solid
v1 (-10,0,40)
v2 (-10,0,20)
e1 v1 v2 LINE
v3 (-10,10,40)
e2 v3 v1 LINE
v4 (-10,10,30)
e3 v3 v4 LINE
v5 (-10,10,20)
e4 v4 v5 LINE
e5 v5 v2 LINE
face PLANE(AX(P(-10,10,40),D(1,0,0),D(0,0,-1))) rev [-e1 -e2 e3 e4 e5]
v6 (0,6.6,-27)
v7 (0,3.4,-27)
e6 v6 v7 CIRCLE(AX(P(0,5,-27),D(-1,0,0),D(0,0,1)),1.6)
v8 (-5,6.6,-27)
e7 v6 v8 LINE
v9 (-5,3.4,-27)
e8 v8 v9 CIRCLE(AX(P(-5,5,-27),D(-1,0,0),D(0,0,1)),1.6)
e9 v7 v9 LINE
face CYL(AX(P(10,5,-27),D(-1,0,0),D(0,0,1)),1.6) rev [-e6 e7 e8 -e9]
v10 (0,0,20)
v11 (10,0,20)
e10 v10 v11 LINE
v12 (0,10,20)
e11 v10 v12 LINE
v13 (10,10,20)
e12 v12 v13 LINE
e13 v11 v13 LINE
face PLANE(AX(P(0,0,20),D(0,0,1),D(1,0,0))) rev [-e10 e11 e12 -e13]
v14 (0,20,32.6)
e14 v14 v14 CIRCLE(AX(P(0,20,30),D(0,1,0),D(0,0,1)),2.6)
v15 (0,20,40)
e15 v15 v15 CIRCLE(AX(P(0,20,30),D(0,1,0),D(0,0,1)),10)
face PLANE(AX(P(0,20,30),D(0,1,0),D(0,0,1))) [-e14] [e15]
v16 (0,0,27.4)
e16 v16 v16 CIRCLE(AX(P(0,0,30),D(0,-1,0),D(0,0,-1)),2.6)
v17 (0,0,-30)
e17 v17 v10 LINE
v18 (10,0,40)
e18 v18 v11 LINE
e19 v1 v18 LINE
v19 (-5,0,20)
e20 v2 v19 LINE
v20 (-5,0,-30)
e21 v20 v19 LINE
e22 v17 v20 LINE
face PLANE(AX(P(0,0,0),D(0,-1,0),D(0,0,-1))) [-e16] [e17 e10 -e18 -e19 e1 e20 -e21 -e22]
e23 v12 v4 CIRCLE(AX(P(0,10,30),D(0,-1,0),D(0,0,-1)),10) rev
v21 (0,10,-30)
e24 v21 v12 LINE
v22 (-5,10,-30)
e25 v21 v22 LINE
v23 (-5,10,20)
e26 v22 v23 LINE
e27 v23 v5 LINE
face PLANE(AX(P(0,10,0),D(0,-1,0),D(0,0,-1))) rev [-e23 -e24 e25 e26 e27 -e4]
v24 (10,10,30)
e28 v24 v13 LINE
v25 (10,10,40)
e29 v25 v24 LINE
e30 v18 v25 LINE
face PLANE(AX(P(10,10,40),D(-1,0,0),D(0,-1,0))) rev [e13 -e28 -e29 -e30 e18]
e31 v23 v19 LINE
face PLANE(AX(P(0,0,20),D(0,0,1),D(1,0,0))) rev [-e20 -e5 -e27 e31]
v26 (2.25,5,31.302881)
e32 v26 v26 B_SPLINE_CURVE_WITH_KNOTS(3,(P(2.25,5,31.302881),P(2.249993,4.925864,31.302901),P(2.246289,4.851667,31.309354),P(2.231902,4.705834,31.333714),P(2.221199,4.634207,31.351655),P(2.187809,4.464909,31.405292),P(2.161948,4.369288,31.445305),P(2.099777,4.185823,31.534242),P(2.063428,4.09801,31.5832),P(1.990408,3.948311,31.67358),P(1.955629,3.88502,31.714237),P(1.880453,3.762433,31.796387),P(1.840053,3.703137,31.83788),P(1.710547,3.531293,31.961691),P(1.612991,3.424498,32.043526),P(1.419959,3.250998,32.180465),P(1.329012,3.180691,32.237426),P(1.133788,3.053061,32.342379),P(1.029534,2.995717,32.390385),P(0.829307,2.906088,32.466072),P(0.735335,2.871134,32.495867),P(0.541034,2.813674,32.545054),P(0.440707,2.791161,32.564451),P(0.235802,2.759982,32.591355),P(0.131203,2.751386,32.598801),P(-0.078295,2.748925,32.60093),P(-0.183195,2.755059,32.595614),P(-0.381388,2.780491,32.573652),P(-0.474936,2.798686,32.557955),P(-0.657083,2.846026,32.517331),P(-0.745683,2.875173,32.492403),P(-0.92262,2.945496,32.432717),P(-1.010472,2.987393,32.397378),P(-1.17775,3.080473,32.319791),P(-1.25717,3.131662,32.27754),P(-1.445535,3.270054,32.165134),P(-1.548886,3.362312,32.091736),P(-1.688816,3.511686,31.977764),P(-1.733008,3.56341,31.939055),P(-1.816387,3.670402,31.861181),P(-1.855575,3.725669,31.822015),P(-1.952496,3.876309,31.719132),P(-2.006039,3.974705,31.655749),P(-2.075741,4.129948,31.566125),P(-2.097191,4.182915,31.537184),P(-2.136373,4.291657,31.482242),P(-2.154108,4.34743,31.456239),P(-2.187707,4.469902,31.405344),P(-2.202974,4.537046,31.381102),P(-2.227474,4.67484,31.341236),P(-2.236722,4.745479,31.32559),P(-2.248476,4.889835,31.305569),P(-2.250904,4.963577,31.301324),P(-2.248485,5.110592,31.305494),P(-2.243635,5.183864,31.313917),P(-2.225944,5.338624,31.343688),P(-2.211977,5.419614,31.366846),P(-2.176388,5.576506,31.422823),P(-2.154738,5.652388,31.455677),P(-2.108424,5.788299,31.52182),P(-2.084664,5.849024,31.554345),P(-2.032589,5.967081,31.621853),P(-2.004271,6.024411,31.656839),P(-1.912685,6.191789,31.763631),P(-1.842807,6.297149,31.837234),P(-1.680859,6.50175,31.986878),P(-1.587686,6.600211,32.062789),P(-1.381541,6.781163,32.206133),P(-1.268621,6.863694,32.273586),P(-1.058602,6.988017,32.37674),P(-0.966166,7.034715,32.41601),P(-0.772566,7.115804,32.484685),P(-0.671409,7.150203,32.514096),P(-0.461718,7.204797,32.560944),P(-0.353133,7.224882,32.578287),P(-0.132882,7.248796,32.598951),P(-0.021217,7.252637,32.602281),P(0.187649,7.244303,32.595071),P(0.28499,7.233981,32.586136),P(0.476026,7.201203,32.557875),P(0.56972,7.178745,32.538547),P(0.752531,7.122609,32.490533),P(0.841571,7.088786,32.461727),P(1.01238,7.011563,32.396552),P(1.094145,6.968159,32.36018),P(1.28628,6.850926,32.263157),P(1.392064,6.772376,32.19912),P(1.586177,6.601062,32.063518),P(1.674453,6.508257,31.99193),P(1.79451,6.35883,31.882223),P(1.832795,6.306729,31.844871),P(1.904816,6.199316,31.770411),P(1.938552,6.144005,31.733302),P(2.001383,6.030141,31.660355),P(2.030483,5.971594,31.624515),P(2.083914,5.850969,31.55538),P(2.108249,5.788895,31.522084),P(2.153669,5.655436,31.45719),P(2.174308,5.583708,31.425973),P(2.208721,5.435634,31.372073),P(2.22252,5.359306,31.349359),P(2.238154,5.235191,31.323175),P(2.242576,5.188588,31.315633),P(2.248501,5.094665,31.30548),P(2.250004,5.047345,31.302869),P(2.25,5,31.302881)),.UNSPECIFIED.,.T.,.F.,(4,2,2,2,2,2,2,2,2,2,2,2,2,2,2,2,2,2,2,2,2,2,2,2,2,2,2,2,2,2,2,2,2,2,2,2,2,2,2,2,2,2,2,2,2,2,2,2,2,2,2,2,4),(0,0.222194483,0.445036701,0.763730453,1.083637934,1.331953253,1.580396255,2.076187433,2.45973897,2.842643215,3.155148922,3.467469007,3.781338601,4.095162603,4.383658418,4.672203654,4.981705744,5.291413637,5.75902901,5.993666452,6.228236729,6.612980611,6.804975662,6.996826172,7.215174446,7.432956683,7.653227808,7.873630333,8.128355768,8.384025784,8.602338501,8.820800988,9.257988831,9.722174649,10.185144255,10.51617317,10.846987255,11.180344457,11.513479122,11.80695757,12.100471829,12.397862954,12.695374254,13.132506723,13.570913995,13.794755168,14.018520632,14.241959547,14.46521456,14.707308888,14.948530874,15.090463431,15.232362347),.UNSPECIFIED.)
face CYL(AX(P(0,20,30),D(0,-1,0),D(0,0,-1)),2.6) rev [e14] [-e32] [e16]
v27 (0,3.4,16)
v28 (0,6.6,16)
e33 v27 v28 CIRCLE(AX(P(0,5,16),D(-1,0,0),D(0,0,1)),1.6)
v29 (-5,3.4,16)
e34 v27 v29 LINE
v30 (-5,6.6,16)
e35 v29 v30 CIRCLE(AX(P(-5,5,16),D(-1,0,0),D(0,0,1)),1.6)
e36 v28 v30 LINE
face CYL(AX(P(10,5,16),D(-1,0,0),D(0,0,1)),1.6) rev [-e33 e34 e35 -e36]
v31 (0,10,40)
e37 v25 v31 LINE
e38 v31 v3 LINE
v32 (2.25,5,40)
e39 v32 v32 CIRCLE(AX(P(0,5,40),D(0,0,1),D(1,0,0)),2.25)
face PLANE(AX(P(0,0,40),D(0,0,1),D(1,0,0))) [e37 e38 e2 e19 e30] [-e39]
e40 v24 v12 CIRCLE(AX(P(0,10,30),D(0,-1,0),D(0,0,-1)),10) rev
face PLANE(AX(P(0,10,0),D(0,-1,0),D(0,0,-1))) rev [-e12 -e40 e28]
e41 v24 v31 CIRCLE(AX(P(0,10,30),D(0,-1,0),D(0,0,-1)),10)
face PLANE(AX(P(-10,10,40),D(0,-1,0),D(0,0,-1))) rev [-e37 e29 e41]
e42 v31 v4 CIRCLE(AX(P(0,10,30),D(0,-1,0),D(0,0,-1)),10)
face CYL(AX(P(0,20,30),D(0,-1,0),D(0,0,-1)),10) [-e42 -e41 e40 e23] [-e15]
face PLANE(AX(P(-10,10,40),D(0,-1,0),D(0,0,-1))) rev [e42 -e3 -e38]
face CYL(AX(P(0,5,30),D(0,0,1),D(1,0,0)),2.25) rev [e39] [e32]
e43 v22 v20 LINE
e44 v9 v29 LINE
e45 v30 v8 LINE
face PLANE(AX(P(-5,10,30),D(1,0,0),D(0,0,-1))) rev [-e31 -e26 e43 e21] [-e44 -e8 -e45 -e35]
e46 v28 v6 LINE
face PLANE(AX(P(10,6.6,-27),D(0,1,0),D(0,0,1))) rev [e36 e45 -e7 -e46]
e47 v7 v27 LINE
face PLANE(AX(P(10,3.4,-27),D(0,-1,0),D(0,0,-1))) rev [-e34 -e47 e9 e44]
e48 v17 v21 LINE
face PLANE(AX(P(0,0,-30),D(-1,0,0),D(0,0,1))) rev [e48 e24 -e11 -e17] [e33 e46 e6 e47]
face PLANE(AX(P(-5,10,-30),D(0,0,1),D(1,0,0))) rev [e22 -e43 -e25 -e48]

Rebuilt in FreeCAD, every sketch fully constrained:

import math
import FreeCAD as App
import Part
import Sketcher
Q = App.Units.Quantity


def add_polygon(sketch, points):
    """Adds a closed chain of lines whose ends are joined by coincident constraints."""
    first, n = sketch.GeometryCount, len(points)
    for a, b in zip(points, points[1:] + points[:1]):
        sketch.addGeometry(Part.LineSegment(App.Vector(*a, 0), App.Vector(*b, 0)), False)
    for i in range(n):
        sketch.addConstraint(Sketcher.Constraint("Coincident", first + i, 2, first + (i + 1) % n, 1))

doc = App.newDocument("Part")
body = doc.addObject("PartDesign::Body", "Body")

# Sketch on XZ plane
sketch1 = body.newObject("Sketcher::SketchObject", "Sketch")
sketch1.AttachmentSupport = (doc.getObject("XZ_Plane"), [""])
sketch1.MapMode = "FlatFace"
add_polygon(sketch1, [(-5, -30), (-5, 30), (5, 30), (5, -30)])  # lines 0-3
sketch1.addConstraint([
    Sketcher.Constraint("Vertical", 0),
    Sketcher.Constraint("Horizontal", 1),
    Sketcher.Constraint("Vertical", 2),
    Sketcher.Constraint("Horizontal", 3),
    Sketcher.Constraint("Symmetric", 0, 2, 2, 2, -1, 1),
    Sketcher.Constraint("DistanceX", 1, 1, 1, 2, Q("10 mm")),
    Sketcher.Constraint("DistanceY", 0, 1, 0, 2, Q("60 mm")),
])
pad1 = body.newObject("PartDesign::Pad", "Pad")
pad1.Profile = sketch1
pad1.Length = 10
pad1.Reversed = True

# Sketch on XZ plane
sketch2 = body.newObject("Sketcher::SketchObject", "Sketch001")
sketch2.AttachmentSupport = (doc.getObject("XZ_Plane"), [""])
sketch2.MapMode = "FlatFace"
sketch2.addGeometry([
    Part.Circle(App.Vector(0, 30, 0), App.Vector(0, 0, 1), 10),
    Part.Circle(App.Vector(0, 30, 0), App.Vector(0, 0, 1), 2.6),
], False)
sketch2.addConstraint([
    Sketcher.Constraint("Coincident", 1, 3, 0, 3),
    Sketcher.Constraint("PointOnObject", 0, 3, -2),
    Sketcher.Constraint("Diameter", 0, Q("20 mm")),
    Sketcher.Constraint("Diameter", 1, Q("5.2 mm")),
    Sketcher.Constraint("DistanceY", -1, 1, 0, 3, Q("30 mm")),
])
pad2 = body.newObject("PartDesign::Pad", "Pad001")
pad2.Profile = sketch2
pad2.Length = 20
pad2.Reversed = True

# Sketch on XZ plane
sketch3 = body.newObject("Sketcher::SketchObject", "Sketch002")
sketch3.AttachmentSupport = (doc.getObject("XZ_Plane"), [""])
sketch3.MapMode = "FlatFace"
sketch3.AttachmentOffset = App.Placement(App.Vector(0, 0, -10), App.Rotation())
add_polygon(sketch3, [(0, -30), (0, 20), (6, 20), (6, -30)])  # lines 0-3
sketch3.addConstraint([
    Sketcher.Constraint("Vertical", 0),
    Sketcher.Constraint("Horizontal", 1),
    Sketcher.Constraint("Vertical", 2),
    Sketcher.Constraint("Horizontal", 3),
    Sketcher.Constraint("PointOnObject", 0, 2, -2),
    Sketcher.Constraint("DistanceX", 1, 1, 1, 2, Q("6 mm")),
    Sketcher.Constraint("DistanceY", 0, 1, 0, 2, Q("50 mm")),
    Sketcher.Constraint("DistanceY", -1, 1, 0, 2, Q("20 mm")),
])
pocket1 = body.newObject("PartDesign::Pocket", "Pocket")
pocket1.Profile = sketch3
pocket1.Type = "ThroughAll"
pocket1.Reversed = True

# Sketch on YZ plane
sketch4 = body.newObject("Sketcher::SketchObject", "Sketch003")
sketch4.AttachmentSupport = (doc.getObject("YZ_Plane"), [""])
sketch4.MapMode = "FlatFace"
sketch4.AttachmentOffset = App.Placement(App.Vector(0, 0, -5), App.Rotation())
sketch4.addGeometry([
    Part.LineSegment(App.Vector(6.6, 16, 0), App.Vector(6.6, -27, 0)),
    Part.ArcOfCircle(Part.Circle(App.Vector(5, -27, 0), App.Vector(0, 0, 1), 1.6), math.radians(180), math.radians(360)),
    Part.LineSegment(App.Vector(3.4, -27, 0), App.Vector(3.4, 16, 0)),
    Part.ArcOfCircle(Part.Circle(App.Vector(5, 16, 0), App.Vector(0, 0, 1), 1.6), math.radians(0), math.radians(180)),
], False)
sketch4.addConstraint([
    Sketcher.Constraint("Tangent", 0, 2, 1, 2),
    Sketcher.Constraint("Tangent", 1, 1, 2, 1),
    Sketcher.Constraint("Tangent", 2, 2, 3, 2),
    Sketcher.Constraint("Tangent", 3, 1, 0, 1),
    Sketcher.Constraint("Vertical", 0),
    Sketcher.Constraint("Vertical", 2),
    Sketcher.Constraint("Radius", 1, Q("1.6 mm")),
    Sketcher.Constraint("DistanceY", 0, 2, 0, 1, Q("43 mm")),
    Sketcher.Constraint("DistanceX", -1, 1, 1, 3, Q("5 mm")),
    Sketcher.Constraint("DistanceY", 1, 3, -1, 1, Q("27 mm")),
])
pocket2 = body.newObject("PartDesign::Pocket", "Pocket001")
pocket2.Profile = sketch4
pocket2.Type = "ThroughAll"
pocket2.Reversed = True

# Sketch on XY plane
sketch5 = body.newObject("Sketcher::SketchObject", "Sketch004")
sketch5.AttachmentSupport = (doc.getObject("XY_Plane"), [""])
sketch5.MapMode = "FlatFace"
sketch5.AttachmentOffset = App.Placement(App.Vector(0, 0, 20), App.Rotation())
add_polygon(sketch5, [(-10, 10), (-10, 0), (10, 0), (10, 10)])  # lines 0-3
sketch5.addConstraint([
    Sketcher.Constraint("Vertical", 0),
    Sketcher.Constraint("Horizontal", 1),
    Sketcher.Constraint("Vertical", 2),
    Sketcher.Constraint("Horizontal", 3),
    Sketcher.Constraint("Symmetric", 0, 2, 1, 2, -1, 1),
    Sketcher.Constraint("DistanceX", 1, 1, 1, 2, Q("20 mm")),
    Sketcher.Constraint("DistanceY", 0, 2, 0, 1, Q("10 mm")),
])
pad3 = body.newObject("PartDesign::Pad", "Pad002")
pad3.Profile = sketch5
pad3.Length = 20

# Sketch on XZ plane
sketch6 = body.newObject("Sketcher::SketchObject", "Sketch005")
sketch6.AttachmentSupport = (doc.getObject("XZ_Plane"), [""])
sketch6.MapMode = "FlatFace"
sketch6.addGeometry(Part.Circle(App.Vector(0, 30, 0), App.Vector(0, 0, 1), 2.6), False)
sketch6.addConstraint([
    Sketcher.Constraint("PointOnObject", 0, 3, -2),
    Sketcher.Constraint("Diameter", 0, Q("5.2 mm")),
    Sketcher.Constraint("DistanceY", -1, 1, 0, 3, Q("30 mm")),
])
pocket3 = body.newObject("PartDesign::Pocket", "Pocket002")
pocket3.Profile = sketch6
pocket3.Type = "ThroughAll"

# Sketch on XY plane
sketch7 = body.newObject("Sketcher::SketchObject", "Sketch006")
sketch7.AttachmentSupport = (doc.getObject("XY_Plane"), [""])
sketch7.MapMode = "FlatFace"
sketch7.AttachmentOffset = App.Placement(App.Vector(0, 0, 40), App.Rotation())
sketch7.addGeometry(Part.Circle(App.Vector(0, 5, 0), App.Vector(0, 0, 1), 2.2), False)
sketch7.addConstraint([
    Sketcher.Constraint("PointOnObject", 0, 3, -2),
    Sketcher.Constraint("Diameter", 0, Q("4.5 mm")),
    Sketcher.Constraint("DistanceY", -1, 1, 0, 3, Q("5 mm")),
])
pocket4 = body.newObject("PartDesign::Pocket", "Pocket003")
pocket4.Profile = sketch7
pocket4.Length = 10

doc.recompute()
